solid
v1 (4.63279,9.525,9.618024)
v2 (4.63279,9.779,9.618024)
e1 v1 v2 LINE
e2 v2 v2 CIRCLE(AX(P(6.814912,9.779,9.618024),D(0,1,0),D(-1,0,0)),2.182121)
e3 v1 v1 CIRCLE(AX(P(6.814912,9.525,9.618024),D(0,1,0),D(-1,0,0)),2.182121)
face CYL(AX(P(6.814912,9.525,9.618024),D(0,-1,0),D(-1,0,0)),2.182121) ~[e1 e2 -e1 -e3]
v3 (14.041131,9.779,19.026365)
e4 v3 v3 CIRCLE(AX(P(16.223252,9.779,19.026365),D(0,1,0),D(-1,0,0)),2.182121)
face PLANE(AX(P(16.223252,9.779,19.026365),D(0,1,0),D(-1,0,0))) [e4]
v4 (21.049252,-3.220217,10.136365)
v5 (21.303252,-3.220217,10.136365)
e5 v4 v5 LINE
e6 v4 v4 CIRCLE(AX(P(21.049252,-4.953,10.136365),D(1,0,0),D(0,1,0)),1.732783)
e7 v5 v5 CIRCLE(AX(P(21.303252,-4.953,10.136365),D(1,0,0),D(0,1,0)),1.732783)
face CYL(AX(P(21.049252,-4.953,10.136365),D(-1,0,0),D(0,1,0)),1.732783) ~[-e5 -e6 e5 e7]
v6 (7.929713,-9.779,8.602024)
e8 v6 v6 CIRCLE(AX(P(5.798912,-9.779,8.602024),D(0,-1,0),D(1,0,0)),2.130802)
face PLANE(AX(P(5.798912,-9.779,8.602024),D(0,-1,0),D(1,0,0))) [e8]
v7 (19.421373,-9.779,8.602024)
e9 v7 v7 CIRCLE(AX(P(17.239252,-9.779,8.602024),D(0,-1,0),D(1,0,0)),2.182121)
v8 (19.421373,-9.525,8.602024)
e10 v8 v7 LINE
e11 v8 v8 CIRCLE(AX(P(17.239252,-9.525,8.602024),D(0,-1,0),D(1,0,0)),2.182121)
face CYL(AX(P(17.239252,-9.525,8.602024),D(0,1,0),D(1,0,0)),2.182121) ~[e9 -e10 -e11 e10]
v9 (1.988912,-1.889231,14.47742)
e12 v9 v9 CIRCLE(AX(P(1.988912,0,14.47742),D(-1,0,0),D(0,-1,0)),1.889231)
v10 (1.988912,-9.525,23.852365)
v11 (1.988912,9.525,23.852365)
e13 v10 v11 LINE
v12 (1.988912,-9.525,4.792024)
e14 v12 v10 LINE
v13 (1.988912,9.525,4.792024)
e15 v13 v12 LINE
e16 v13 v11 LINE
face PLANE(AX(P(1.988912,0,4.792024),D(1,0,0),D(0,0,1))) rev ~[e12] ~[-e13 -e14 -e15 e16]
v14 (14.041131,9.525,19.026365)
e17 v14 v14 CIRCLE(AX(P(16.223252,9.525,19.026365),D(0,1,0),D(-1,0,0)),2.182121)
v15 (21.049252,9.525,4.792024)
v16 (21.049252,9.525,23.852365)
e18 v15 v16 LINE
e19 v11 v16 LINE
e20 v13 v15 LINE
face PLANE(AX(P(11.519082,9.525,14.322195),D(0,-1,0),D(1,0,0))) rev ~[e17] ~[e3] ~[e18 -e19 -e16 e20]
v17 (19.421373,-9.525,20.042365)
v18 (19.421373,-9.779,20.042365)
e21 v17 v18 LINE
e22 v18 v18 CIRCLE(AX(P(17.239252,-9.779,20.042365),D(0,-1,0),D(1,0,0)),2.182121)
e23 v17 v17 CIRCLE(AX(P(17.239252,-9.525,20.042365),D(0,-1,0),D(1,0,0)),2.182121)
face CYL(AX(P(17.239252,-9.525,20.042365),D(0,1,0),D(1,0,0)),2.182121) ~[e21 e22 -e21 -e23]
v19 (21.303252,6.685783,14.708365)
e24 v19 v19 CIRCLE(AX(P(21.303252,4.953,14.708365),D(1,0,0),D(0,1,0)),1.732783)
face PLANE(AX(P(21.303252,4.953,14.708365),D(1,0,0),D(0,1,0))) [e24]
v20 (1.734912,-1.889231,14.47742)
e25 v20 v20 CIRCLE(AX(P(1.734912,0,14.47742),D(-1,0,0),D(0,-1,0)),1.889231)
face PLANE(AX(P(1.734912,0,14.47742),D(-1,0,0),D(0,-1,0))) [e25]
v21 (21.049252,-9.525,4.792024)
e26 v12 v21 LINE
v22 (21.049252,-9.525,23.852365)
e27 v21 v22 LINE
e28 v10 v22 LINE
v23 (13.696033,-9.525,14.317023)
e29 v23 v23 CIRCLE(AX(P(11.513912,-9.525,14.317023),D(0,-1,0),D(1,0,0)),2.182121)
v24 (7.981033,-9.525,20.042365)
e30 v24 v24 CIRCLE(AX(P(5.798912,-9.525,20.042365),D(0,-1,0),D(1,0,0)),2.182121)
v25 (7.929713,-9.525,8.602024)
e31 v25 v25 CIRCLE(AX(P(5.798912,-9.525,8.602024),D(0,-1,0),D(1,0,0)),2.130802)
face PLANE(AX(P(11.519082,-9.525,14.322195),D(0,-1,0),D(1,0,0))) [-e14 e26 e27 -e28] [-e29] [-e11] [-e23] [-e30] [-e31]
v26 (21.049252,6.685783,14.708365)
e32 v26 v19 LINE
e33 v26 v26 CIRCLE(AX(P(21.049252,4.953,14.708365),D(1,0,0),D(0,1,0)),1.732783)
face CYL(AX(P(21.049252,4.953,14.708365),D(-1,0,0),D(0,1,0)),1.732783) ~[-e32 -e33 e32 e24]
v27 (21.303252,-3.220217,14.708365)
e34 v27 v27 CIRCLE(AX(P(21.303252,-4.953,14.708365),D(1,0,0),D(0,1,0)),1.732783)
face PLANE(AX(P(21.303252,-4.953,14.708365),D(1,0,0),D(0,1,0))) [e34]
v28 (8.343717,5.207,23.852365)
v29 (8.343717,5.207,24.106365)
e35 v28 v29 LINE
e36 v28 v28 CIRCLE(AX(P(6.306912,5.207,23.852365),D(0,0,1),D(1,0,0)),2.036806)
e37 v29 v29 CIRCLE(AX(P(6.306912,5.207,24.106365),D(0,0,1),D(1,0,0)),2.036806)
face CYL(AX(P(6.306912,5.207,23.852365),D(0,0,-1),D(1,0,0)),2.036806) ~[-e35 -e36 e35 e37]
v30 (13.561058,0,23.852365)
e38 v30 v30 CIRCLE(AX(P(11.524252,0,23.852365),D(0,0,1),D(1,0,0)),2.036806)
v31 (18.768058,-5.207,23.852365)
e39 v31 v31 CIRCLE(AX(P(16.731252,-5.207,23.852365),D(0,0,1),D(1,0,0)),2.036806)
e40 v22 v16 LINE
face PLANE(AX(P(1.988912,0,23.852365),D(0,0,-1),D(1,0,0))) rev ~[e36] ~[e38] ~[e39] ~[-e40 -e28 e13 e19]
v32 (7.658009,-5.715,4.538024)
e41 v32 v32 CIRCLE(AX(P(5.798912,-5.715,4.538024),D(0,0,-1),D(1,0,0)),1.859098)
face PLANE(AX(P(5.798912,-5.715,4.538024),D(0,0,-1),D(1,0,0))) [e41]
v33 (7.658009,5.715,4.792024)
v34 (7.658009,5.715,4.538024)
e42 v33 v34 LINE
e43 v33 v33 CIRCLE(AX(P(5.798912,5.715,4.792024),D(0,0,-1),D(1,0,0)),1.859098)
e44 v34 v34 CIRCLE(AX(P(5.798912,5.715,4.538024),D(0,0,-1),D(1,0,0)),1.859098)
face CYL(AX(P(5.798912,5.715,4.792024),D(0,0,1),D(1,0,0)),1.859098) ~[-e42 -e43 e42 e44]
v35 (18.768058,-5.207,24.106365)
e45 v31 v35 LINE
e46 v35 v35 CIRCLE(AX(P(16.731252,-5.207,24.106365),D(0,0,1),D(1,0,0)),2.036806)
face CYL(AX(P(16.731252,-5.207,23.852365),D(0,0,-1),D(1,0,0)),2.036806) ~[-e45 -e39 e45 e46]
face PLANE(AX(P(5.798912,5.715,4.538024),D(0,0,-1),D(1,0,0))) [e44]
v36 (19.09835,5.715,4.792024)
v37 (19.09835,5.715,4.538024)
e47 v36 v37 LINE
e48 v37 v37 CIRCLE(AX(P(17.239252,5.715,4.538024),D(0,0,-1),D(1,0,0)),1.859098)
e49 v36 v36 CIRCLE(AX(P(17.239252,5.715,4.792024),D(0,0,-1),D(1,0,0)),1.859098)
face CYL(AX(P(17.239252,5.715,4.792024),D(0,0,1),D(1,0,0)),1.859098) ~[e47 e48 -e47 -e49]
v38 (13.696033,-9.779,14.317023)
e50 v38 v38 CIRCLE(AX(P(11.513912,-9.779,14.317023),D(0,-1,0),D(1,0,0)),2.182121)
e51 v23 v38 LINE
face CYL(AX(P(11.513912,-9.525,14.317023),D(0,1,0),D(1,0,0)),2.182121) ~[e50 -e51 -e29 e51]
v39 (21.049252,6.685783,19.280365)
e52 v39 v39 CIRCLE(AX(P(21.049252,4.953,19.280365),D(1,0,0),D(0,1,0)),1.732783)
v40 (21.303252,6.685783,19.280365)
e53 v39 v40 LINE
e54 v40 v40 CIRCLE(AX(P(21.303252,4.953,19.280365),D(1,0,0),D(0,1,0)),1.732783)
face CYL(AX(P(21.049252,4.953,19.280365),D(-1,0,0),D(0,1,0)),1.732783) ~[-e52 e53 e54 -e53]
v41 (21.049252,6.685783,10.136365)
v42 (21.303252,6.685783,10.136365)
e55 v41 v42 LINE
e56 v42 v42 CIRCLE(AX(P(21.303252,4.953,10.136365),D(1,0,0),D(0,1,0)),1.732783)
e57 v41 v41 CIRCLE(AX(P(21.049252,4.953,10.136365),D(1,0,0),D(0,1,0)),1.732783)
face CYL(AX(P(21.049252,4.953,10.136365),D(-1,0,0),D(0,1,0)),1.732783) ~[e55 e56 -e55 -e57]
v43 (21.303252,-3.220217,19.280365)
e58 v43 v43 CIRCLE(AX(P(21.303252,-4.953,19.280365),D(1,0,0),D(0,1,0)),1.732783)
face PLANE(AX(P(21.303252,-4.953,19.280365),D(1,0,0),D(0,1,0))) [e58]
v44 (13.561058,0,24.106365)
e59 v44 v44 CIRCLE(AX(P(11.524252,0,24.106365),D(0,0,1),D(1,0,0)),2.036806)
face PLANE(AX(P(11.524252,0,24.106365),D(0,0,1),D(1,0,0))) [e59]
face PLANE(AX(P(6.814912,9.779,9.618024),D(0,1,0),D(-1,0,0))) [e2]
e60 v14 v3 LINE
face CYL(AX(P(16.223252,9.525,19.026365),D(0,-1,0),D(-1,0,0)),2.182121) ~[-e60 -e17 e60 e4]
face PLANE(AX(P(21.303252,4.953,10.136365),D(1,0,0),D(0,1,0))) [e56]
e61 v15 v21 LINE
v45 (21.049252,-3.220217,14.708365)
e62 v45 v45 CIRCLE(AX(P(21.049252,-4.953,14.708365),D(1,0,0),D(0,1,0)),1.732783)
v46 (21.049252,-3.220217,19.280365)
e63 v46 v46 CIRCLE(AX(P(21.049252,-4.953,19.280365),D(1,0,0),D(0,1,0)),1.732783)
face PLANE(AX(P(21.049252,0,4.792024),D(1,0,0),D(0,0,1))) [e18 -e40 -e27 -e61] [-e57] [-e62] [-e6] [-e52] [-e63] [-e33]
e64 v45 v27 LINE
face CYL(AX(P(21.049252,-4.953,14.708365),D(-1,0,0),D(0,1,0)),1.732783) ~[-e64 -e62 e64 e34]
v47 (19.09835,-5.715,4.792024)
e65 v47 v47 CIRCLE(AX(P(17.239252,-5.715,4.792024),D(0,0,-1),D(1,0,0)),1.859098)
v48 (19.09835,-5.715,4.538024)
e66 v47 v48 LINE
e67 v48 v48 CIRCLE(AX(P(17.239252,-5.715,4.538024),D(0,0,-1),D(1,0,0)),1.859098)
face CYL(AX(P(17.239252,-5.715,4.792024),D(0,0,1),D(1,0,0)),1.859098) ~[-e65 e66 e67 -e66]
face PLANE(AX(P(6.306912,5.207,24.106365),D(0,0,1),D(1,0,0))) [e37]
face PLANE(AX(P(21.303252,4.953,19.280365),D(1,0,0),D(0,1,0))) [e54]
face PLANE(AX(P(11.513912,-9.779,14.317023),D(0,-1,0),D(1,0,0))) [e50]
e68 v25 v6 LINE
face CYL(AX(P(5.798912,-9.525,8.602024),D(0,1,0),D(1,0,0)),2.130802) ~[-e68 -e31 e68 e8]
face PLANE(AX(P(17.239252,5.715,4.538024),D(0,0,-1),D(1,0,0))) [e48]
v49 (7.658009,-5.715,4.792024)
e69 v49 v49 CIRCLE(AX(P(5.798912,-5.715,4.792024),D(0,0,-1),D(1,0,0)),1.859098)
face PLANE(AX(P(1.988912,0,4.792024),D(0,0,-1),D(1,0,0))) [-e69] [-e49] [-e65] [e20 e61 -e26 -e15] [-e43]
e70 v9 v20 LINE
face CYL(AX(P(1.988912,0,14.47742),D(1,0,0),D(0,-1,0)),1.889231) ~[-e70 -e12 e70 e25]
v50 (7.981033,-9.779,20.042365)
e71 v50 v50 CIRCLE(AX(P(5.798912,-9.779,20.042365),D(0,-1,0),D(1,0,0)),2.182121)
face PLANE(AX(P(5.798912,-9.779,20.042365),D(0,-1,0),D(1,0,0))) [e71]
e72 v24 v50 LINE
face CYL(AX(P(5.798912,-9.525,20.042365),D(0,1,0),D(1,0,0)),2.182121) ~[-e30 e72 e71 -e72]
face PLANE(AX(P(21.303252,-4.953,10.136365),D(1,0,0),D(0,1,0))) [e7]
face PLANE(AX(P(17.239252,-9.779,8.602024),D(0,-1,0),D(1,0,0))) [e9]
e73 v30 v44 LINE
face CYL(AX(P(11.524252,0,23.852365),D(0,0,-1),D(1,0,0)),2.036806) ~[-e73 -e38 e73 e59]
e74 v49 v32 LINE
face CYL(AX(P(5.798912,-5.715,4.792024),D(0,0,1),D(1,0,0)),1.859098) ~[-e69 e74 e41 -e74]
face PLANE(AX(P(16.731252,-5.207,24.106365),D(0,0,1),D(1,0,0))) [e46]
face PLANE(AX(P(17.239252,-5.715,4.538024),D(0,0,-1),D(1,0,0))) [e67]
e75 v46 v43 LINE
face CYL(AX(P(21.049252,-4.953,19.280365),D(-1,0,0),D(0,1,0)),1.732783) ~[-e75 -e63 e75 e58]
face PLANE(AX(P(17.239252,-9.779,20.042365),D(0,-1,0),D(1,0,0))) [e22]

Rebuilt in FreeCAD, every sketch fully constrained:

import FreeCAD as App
import Part
import Sketcher
from FreeCAD import Vector
Q = App.Units.Quantity


def add_polygon(sketch, points):
    """Adds a closed chain of lines whose ends are joined by coincident constraints."""
    first, n = sketch.GeometryCount, len(points)
    for a, b in zip(points, points[1:] + points[:1]):
        sketch.addGeometry(Part.LineSegment(App.Vector(*a, 0), App.Vector(*b, 0)), False)
    for i in range(n):
        sketch.addConstraint(Sketcher.Constraint("Coincident", first + i, 2, first + (i + 1) % n, 1))

doc = App.newDocument("Part")
body = doc.addObject("PartDesign::Body", "Body")

sketch1 = body.newObject("Sketcher::SketchObject", "Sketch")
sketch1.AttachmentSupport = (doc.getObject("XZ_Plane"), [""])
sketch1.MapMode = "FlatFace"
add_polygon(sketch1, [(2, 24), (2, 5), (21, 5), (21, 24)])
sketch1.addConstraint([
    Sketcher.Constraint("Vertical", 0),
    Sketcher.Constraint("Horizontal", 1),
    Sketcher.Constraint("Vertical", 2),
    Sketcher.Constraint("Horizontal", 3),
    Sketcher.Constraint("Equal", 3, 0),
    Sketcher.Constraint("DistanceX", 1, 1, 1, 2, Q("19.060341 mm")),
    Sketcher.Constraint("DistanceX", -1, 1, 0, 2, Q("1.988912 mm")),
    Sketcher.Constraint("DistanceY", -1, 1, 0, 2, Q("4.792024 mm")),
])
pad1 = body.newObject("PartDesign::Pad", "Pad")
pad1.Profile = sketch1
pad1.Length = Q("0.75 in")
pad1.Midplane = True

sketch2 = body.newObject("Sketcher::SketchObject", "Sketch001")
sketch2.AttachmentSupport = (doc.getObject("YZ_Plane"), [""])
sketch2.MapMode = "FlatFace"
sketch2.AttachmentOffset = App.Placement(Vector(0, 0, 1.988912), App.Rotation())
sketch2.addGeometry(Part.Circle(Vector(0, 14.5, 0), Vector(0, 0, 1), 1.9), False)
sketch2.addConstraint([
    Sketcher.Constraint("PointOnObject", 0, 3, -2),
    Sketcher.Constraint("Diameter", 0, Q("3.778463 mm")),
    Sketcher.Constraint("DistanceY", -1, 1, 0, 3, Q("14.47742 mm")),
])
pad2 = body.newObject("PartDesign::Pad", "Pad001")
pad2.Profile = sketch2
pad2.Length = Q("0.01 in")
pad2.Reversed = True

sketch3 = body.newObject("Sketcher::SketchObject", "Sketch002")
sketch3.AttachmentSupport = (doc.getObject("YZ_Plane"), [""])
sketch3.MapMode = "FlatFace"
sketch3.AttachmentOffset = App.Placement(Vector(0, 0, 21.049252), App.Rotation())
sketch3.addGeometry([
    Part.Circle(Vector(-5, 19.3, 0), Vector(0, 0, 1), 1.7),
    Part.Circle(Vector(5, 19.3, 0), Vector(0, 0, 1), 1.7),
    Part.Circle(Vector(5, 10.1, 0), Vector(0, 0, 1), 1.7),
    Part.Circle(Vector(-5, 10.1, 0), Vector(0, 0, 1), 1.7),
    Part.Circle(Vector(-5, 14.7, 0), Vector(0, 0, 1), 1.7),
    Part.Circle(Vector(5, 14.7, 0), Vector(0, 0, 1), 1.7),
], False)
sketch3.addConstraint([
    Sketcher.Constraint("Equal", 0, 1),
    Sketcher.Constraint("Equal", 1, 2),
    Sketcher.Constraint("Equal", 2, 3),
    Sketcher.Constraint("Equal", 3, 4),
    Sketcher.Constraint("Equal", 4, 5),
    Sketcher.Constraint("Symmetric", 0, 3, 1, 3, -2),
    Sketcher.Constraint("Symmetric", 2, 3, 3, 3, -2),
    Sketcher.Constraint("Symmetric", 4, 3, 5, 3, -2),
    Sketcher.Constraint("Vertical", 1, 3, 2, 3),
    Sketcher.Constraint("Vertical", 3, 3, 4, 3),
    Sketcher.Constraint("DistanceX", 0, 3, 1, 3, Q("0.39 in")),
    Sketcher.Constraint("DistanceY", 2, 3, 1, 3, Q("0.36 in")),
    Sketcher.Constraint("DistanceY", 3, 3, 4, 3, Q("0.18 in")),
    Sketcher.Constraint("Diameter", 0, Q("3.465566 mm")),
    Sketcher.Constraint("DistanceY", -1, 1, 0, 3, Q("19.280365 mm")),
])
pad3 = body.newObject("PartDesign::Pad", "Pad002")
pad3.Profile = sketch3
pad3.Length = Q("0.01 in")

sketch4 = body.newObject("Sketcher::SketchObject", "Sketch003")
sketch4.AttachmentSupport = (doc.getObject("XZ_Plane"), [""])
sketch4.MapMode = "FlatFace"
sketch4.AttachmentOffset = App.Placement(Vector(0, 0, -0.375 * 25.4), App.Rotation())
sketch4.addGeometry([
    Part.Circle(Vector(16.2, 19, 0), Vector(0, 0, 1), 2.2),
    Part.Circle(Vector(6.8, 9.6, 0), Vector(0, 0, 1), 2.2),
], False)
sketch4.addConstraint([
    Sketcher.Constraint("Equal", 0, 1),
    Sketcher.Constraint("Diameter", 0, Q("4.364242 mm")),
    Sketcher.Constraint("DistanceX", -1, 1, 1, 3, Q("6.814912 mm")),
    Sketcher.Constraint("DistanceX", 1, 3, 0, 3, Q("9.408341 mm")),
    Sketcher.Constraint("DistanceY", 1, 3, 0, 3, Q("9.408341 mm")),
    Sketcher.Constraint("DistanceY", -1, 1, 0, 3, Q("19.026365 mm")),
])
pad4 = body.newObject("PartDesign::Pad", "Pad003")
pad4.Profile = sketch4
pad4.Length = Q("0.01 in")
pad4.Reversed = True

sketch5 = body.newObject("Sketcher::SketchObject", "Sketch004")
sketch5.AttachmentSupport = (doc.getObject("XY_Plane"), [""])
sketch5.MapMode = "FlatFace"
sketch5.AttachmentOffset = App.Placement(Vector(0, 0, 23.852365), App.Rotation())
sketch5.addGeometry([
    Part.Circle(Vector(16.7, -5.2, 0), Vector(0, 0, 1), 2),
    Part.Circle(Vector(11.5, 0, 0), Vector(0, 0, 1), 2),
    Part.Circle(Vector(6.3, 5.2, 0), Vector(0, 0, 1), 2),
], False)
sketch5.addConstraint([
    Sketcher.Constraint("Equal", 0, 1),
    Sketcher.Constraint("Equal", 1, 2),
    Sketcher.Constraint("PointOnObject", 1, 3, -1),
    Sketcher.Constraint("DistanceY", 0, 3, 2, 3, Q("0.41 in")),
    Sketcher.Constraint("Diameter", 0, Q("4.073612 mm")),
    Sketcher.Constraint("DistanceY", 0, 3, -1, 1, Q("0.205 in")),
    Sketcher.Constraint("DistanceX", 1, 3, 0, 3, Q("0.205 in")),
    Sketcher.Constraint("DistanceX", -1, 1, 2, 3, Q("6.306912 mm")),
    Sketcher.Constraint("DistanceX", 2, 3, 1, 3, Q("5.217341 mm")),
])
pad5 = body.newObject("PartDesign::Pad", "Pad004")
pad5.Profile = sketch5
pad5.Length = Q("0.01 in")

sketch6 = body.newObject("Sketcher::SketchObject", "Sketch005")
sketch6.AttachmentSupport = (doc.getObject("XY_Plane"), [""])
sketch6.MapMode = "FlatFace"
sketch6.AttachmentOffset = App.Placement(Vector(0, 0, 4.792024), App.Rotation())
sketch6.addGeometry([
    Part.Circle(Vector(5.8, -5.7, 0), Vector(0, 0, 1), 1.9),
    Part.Circle(Vector(17.2, -5.7, 0), Vector(0, 0, 1), 1.9),
    Part.Circle(Vector(5.8, 5.7, 0), Vector(0, 0, 1), 1.9),
    Part.Circle(Vector(17.2, 5.7, 0), Vector(0, 0, 1), 1.9),
], False)
sketch6.addConstraint([
    Sketcher.Constraint("Equal", 0, 1),
    Sketcher.Constraint("Equal", 1, 2),
    Sketcher.Constraint("Equal", 2, 3),
    Sketcher.Constraint("Symmetric", 0, 3, 2, 3, -1),
    Sketcher.Constraint("Symmetric", 1, 3, 3, 3, -1),
    Sketcher.Constraint("Horizontal", 0, 3, 1, 3),
    Sketcher.Constraint("DistanceY", 0, 3, 2, 3, Q("0.45 in")),
    Sketcher.Constraint("Diameter", 0, Q("3.718195 mm")),
    Sketcher.Constraint("DistanceX", -1, 1, 0, 3, Q("5.798912 mm")),
    Sketcher.Constraint("DistanceX", 0, 3, 1, 3, Q("11.440341 mm")),
])
pad6 = body.newObject("PartDesign::Pad", "Pad005")
pad6.Profile = sketch6
pad6.Length = Q("0.01 in")
pad6.Reversed = True

sketch7 = body.newObject("Sketcher::SketchObject", "Sketch006")
sketch7.AttachmentSupport = (doc.getObject("XZ_Plane"), [""])
sketch7.MapMode = "FlatFace"
sketch7.AttachmentOffset = App.Placement(Vector(0, 0, 0.375 * 25.4), App.Rotation())
sketch7.addGeometry([
    Part.Circle(Vector(5.8, 8.6, 0), Vector(0, 0, 1), 2.1),
    Part.Circle(Vector(17.2, 20, 0), Vector(0, 0, 1), 2.2),
    Part.Circle(Vector(5.8, 20, 0), Vector(0, 0, 1), 2.2),
    Part.Circle(Vector(17.2, 8.6, 0), Vector(0, 0, 1), 2.2),
    Part.Circle(Vector(11.5, 14.3, 0), Vector(0, 0, 1), 2.2),
], False)
sketch7.addConstraint([
    Sketcher.Constraint("Equal", 1, 2),
    Sketcher.Constraint("Equal", 2, 3),
    Sketcher.Constraint("Equal", 3, 4),
    Sketcher.Constraint("Horizontal", 1, 3, 2, 3),
    Sketcher.Constraint("Horizontal", 0, 3, 3, 3),
    Sketcher.Constraint("Vertical", 0, 3, 2, 3),
    Sketcher.Constraint("Vertical", 1, 3, 3, 3),
    Sketcher.Constraint("DistanceX", 0, 3, 4, 3, Q("0.225 in")),
    Sketcher.Constraint("DistanceY", 0, 3, 4, 3, Q("0.2249999 in")),
    Sketcher.Constraint("Diameter", 0, Q("4.261604 mm")),
    Sketcher.Constraint("Diameter", 1, Q("4.364242 mm")),
    Sketcher.Constraint("DistanceX", -1, 1, 0, 3, Q("5.798912 mm")),
    Sketcher.Constraint("DistanceX", 0, 3, 1, 3, Q("11.440341 mm")),
    Sketcher.Constraint("DistanceY", 0, 3, 1, 3, Q("11.440341 mm")),
    Sketcher.Constraint("DistanceY", -1, 1, 0, 3, Q("8.602024 mm")),
])
pad7 = body.newObject("PartDesign::Pad", "Pad006")
pad7.Profile = sketch7
pad7.Length = Q("0.01 in")

doc.recompute()
